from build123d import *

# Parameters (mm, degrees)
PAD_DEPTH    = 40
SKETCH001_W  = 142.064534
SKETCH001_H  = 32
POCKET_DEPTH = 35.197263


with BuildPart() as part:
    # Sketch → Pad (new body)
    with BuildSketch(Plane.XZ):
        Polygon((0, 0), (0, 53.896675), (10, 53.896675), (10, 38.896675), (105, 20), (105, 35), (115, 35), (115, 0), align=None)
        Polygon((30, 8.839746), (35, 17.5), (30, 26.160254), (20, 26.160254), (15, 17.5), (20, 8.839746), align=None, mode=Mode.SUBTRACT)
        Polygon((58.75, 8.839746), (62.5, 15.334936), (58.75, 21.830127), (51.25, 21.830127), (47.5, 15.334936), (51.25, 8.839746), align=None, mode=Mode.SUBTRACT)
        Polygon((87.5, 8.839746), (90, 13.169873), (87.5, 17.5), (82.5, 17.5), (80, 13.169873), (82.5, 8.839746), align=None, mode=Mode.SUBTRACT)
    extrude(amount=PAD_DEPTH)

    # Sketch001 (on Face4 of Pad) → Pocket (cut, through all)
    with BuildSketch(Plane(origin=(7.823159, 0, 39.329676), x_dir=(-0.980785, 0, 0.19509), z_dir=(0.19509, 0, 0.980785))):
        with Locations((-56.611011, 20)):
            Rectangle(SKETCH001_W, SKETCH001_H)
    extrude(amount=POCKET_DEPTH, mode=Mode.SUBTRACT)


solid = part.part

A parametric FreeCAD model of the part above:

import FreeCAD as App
import Part
import Sketcher
Q = App.Units.Quantity

doc = App.newDocument("Part")
params = doc.addObject("Spreadsheet::Sheet", "Params")
for row, (alias, value) in enumerate([
    ("sketch1_width", "115 mm"),
    ("sketch1_width2", "10 mm"),
    ("sketch1_width3", "5 mm"),
    ("sketch1_height", "35 mm"),
    ("sketch1_height2", "15 mm"),
    ("pad1_length", "40 mm"),
    ("sketch2_height", "32 mm"),
], start=1):
    params.set(f"A{row}", alias)
    params.set(f"B{row}", "=" + value)
    params.setAlias(f"B{row}", alias)

body = doc.addObject("PartDesign::Body", "Body")

# Sketch on XZ plane
sketch1 = body.newObject("Sketcher::SketchObject", "Sketch")
sketch1.AttachmentSupport = (doc.getObject("XZ_Plane"), [""])
sketch1.MapMode = "FlatFace"
sketch1.addGeometry(Part.LineSegment(App.Vector(0, 53.9, 0), App.Vector(0, 0, 0)), False)
sketch1.addGeometry(Part.LineSegment(App.Vector(0, 0, 0), App.Vector(115, 0, 0)), False)
sketch1.addGeometry(Part.LineSegment(App.Vector(115, 0, 0), App.Vector(115, 35, 0)), False)
sketch1.addGeometry(Part.LineSegment(App.Vector(115, 35, 0), App.Vector(105, 35, 0)), False)
sketch1.addGeometry(Part.LineSegment(App.Vector(105, 35, 0), App.Vector(105, 20, 0)), False)
sketch1.addGeometry(Part.LineSegment(App.Vector(105, 20, 0), App.Vector(10, 38.9, 0)), False)
sketch1.addGeometry(Part.LineSegment(App.Vector(10, 38.9, 0), App.Vector(10, 53.9, 0)), False)
sketch1.addGeometry(Part.LineSegment(App.Vector(10, 53.9, 0), App.Vector(0, 53.9, 0)), False)
sketch1.addGeometry(Part.LineSegment(App.Vector(87.5, 8.8, 0), App.Vector(82.5, 8.8, 0)), False)
sketch1.addGeometry(Part.LineSegment(App.Vector(82.5, 8.8, 0), App.Vector(80, 13.2, 0)), False)
sketch1.addGeometry(Part.LineSegment(App.Vector(80, 13.2, 0), App.Vector(82.5, 17.5, 0)), False)
sketch1.addGeometry(Part.LineSegment(App.Vector(82.5, 17.5, 0), App.Vector(87.5, 17.5, 0)), False)
sketch1.addGeometry(Part.LineSegment(App.Vector(87.5, 17.5, 0), App.Vector(90, 13.2, 0)), False)
sketch1.addGeometry(Part.LineSegment(App.Vector(90, 13.2, 0), App.Vector(87.5, 8.8, 0)), False)
sketch1.addGeometry(Part.LineSegment(App.Vector(58.8, 8.8, 0), App.Vector(51.2, 8.8, 0)), False)
sketch1.addGeometry(Part.LineSegment(App.Vector(51.2, 8.8, 0), App.Vector(47.5, 15.3, 0)), False)
sketch1.addGeometry(Part.LineSegment(App.Vector(47.5, 15.3, 0), App.Vector(51.2, 21.8, 0)), False)
sketch1.addGeometry(Part.LineSegment(App.Vector(51.2, 21.8, 0), App.Vector(58.8, 21.8, 0)), False)
sketch1.addGeometry(Part.LineSegment(App.Vector(58.8, 21.8, 0), App.Vector(62.5, 15.3, 0)), False)
sketch1.addGeometry(Part.LineSegment(App.Vector(62.5, 15.3, 0), App.Vector(58.8, 8.8, 0)), False)
sketch1.addGeometry(Part.LineSegment(App.Vector(30, 8.8, 0), App.Vector(20, 8.8, 0)), False)
sketch1.addGeometry(Part.LineSegment(App.Vector(20, 8.8, 0), App.Vector(15, 17.5, 0)), False)
sketch1.addGeometry(Part.LineSegment(App.Vector(15, 17.5, 0), App.Vector(20, 26.2, 0)), False)
sketch1.addGeometry(Part.LineSegment(App.Vector(20, 26.2, 0), App.Vector(30, 26.2, 0)), False)
sketch1.addGeometry(Part.LineSegment(App.Vector(30, 26.2, 0), App.Vector(35, 17.5, 0)), False)
sketch1.addGeometry(Part.LineSegment(App.Vector(35, 17.5, 0), App.Vector(30, 8.8, 0)), False)
sketch1.addConstraint(Sketcher.Constraint("Coincident", 0, 2, 1, 1))
sketch1.addConstraint(Sketcher.Constraint("Coincident", 1, 2, 2, 1))
sketch1.addConstraint(Sketcher.Constraint("Coincident", 2, 2, 3, 1))
sketch1.addConstraint(Sketcher.Constraint("Coincident", 3, 2, 4, 1))
sketch1.addConstraint(Sketcher.Constraint("Coincident", 4, 2, 5, 1))
sketch1.addConstraint(Sketcher.Constraint("Coincident", 5, 2, 6, 1))
sketch1.addConstraint(Sketcher.Constraint("Coincident", 6, 2, 7, 1))
sketch1.addConstraint(Sketcher.Constraint("Coincident", 7, 2, 0, 1))
sketch1.addConstraint(Sketcher.Constraint("Coincident", 8, 2, 9, 1))
sketch1.addConstraint(Sketcher.Constraint("Coincident", 9, 2, 10, 1))
sketch1.addConstraint(Sketcher.Constraint("Coincident", 10, 2, 11, 1))
sketch1.addConstraint(Sketcher.Constraint("Coincident", 11, 2, 12, 1))
sketch1.addConstraint(Sketcher.Constraint("Coincident", 12, 2, 13, 1))
sketch1.addConstraint(Sketcher.Constraint("Coincident", 13, 2, 8, 1))
sketch1.addConstraint(Sketcher.Constraint("Coincident", 14, 2, 15, 1))
sketch1.addConstraint(Sketcher.Constraint("Coincident", 15, 2, 16, 1))
sketch1.addConstraint(Sketcher.Constraint("Coincident", 16, 2, 17, 1))
sketch1.addConstraint(Sketcher.Constraint("Coincident", 17, 2, 18, 1))
sketch1.addConstraint(Sketcher.Constraint("Coincident", 18, 2, 19, 1))
sketch1.addConstraint(Sketcher.Constraint("Coincident", 19, 2, 14, 1))
sketch1.addConstraint(Sketcher.Constraint("Coincident", 20, 2, 21, 1))
sketch1.addConstraint(Sketcher.Constraint("Coincident", 21, 2, 22, 1))
sketch1.addConstraint(Sketcher.Constraint("Coincident", 22, 2, 23, 1))
sketch1.addConstraint(Sketcher.Constraint("Coincident", 23, 2, 24, 1))
sketch1.addConstraint(Sketcher.Constraint("Coincident", 24, 2, 25, 1))
sketch1.addConstraint(Sketcher.Constraint("Coincident", 25, 2, 20, 1))
sketch1.addConstraint(Sketcher.Constraint("Vertical", 0))
sketch1.addConstraint(Sketcher.Constraint("Horizontal", 1))
sketch1.addConstraint(Sketcher.Constraint("Vertical", 2))
sketch1.addConstraint(Sketcher.Constraint("Horizontal", 3))
sketch1.addConstraint(Sketcher.Constraint("Vertical", 4))
sketch1.addConstraint(Sketcher.Constraint("Vertical", 6))
sketch1.addConstraint(Sketcher.Constraint("Horizontal", 7))
sketch1.addConstraint(Sketcher.Constraint("Horizontal", 8))
sketch1.addConstraint(Sketcher.Constraint("Horizontal", 11))
sketch1.addConstraint(Sketcher.Constraint("Horizontal", 14))
sketch1.addConstraint(Sketcher.Constraint("Horizontal", 17))
sketch1.addConstraint(Sketcher.Constraint("Horizontal", 20))
sketch1.addConstraint(Sketcher.Constraint("Horizontal", 23))
sketch1.addConstraint(Sketcher.Constraint("Coincident", 0, 2, -1, 1))
sketch1.addConstraint(Sketcher.Constraint("Parallel", 9, 12))
sketch1.addConstraint(Sketcher.Constraint("Parallel", 10, 13))
sketch1.addConstraint(Sketcher.Constraint("Parallel", 12, 15))
sketch1.addConstraint(Sketcher.Constraint("Parallel", 13, 16))
sketch1.addConstraint(Sketcher.Constraint("Parallel", 15, 18))
sketch1.addConstraint(Sketcher.Constraint("Parallel", 16, 19))
sketch1.addConstraint(Sketcher.Constraint("Parallel", 18, 21))
sketch1.addConstraint(Sketcher.Constraint("Parallel", 19, 22))
sketch1.addConstraint(Sketcher.Constraint("Parallel", 21, 24))
sketch1.addConstraint(Sketcher.Constraint("Parallel", 22, 25))
sketch1.addConstraint(Sketcher.Constraint("Horizontal", 9, 2, 12, 2))
sketch1.addConstraint(Sketcher.Constraint("Horizontal", 13, 2, 14, 2))
sketch1.addConstraint(Sketcher.Constraint("Horizontal", 15, 2, 18, 2))
sketch1.addConstraint(Sketcher.Constraint("Horizontal", 19, 2, 20, 2))
sketch1.addConstraint(Sketcher.Constraint("Horizontal", 11, 2, 21, 2))
sketch1.addConstraint(Sketcher.Constraint("Horizontal", 21, 2, 24, 2))
sketch1.addConstraint(Sketcher.Constraint("Vertical", 8, 2, 10, 2))
sketch1.addConstraint(Sketcher.Constraint("Vertical", 11, 2, 13, 2))
sketch1.addConstraint(Sketcher.Constraint("Vertical", 14, 2, 16, 2))
sketch1.addConstraint(Sketcher.Constraint("Vertical", 20, 2, 22, 2))
sketch1.addConstraint(Sketcher.Constraint("Equal", 3, 7))
sketch1.addConstraint(Sketcher.Constraint("Equal", 7, 20))
sketch1.addConstraint(Sketcher.Constraint("Equal", 4, 6))
sketch1.addConstraint(Sketcher.Constraint("DistanceX", 1, 1, 1, 2, Q("115 mm")))
sketch1.addConstraint(Sketcher.Constraint("DistanceX", 3, 2, 3, 1, Q("10 mm")))
sketch1.addConstraint(Sketcher.Constraint("DistanceX", 8, 2, 8, 1, Q("5 mm")))
sketch1.addConstraint(Sketcher.Constraint("DistanceY", 2, 1, 2, 2, Q("35 mm")))
sketch1.addConstraint(Sketcher.Constraint("DistanceY", 4, 2, 4, 1, Q("15 mm")))
sketch1.addConstraint(Sketcher.Constraint("Angle", 9, Q("120 deg")))
sketch1.addConstraint(Sketcher.Constraint("Distance", 9, Q("5 mm")))
sketch1.addConstraint(Sketcher.Constraint("DistanceX", 14, 2, 14, 1, Q("7.5 mm")))
sketch1.addConstraint(Sketcher.Constraint("DistanceX", -1, 1, 9, 2, Q("80 mm")))
sketch1.addConstraint(Sketcher.Constraint("DistanceX", -1, 1, 20, 2, Q("20 mm")))
sketch1.addConstraint(Sketcher.Constraint("DistanceX", 15, 2, 10, 2, Q("35 mm")))
sketch1.addConstraint(Sketcher.Constraint("DistanceX", 15, 2, 18, 2, Q("15 mm")))
sketch1.addConstraint(Sketcher.Constraint("DistanceY", -1, 1, 10, 2, Q("17.5 mm")))
sketch1.addConstraint(Sketcher.Constraint("Angle", 5, Q("168.75 deg")))
sketch1.setExpression("Constraints[63]", "Params.sketch1_width")
sketch1.setExpression("Constraints[64]", "Params.sketch1_width2")
sketch1.setExpression("Constraints[65]", "Params.sketch1_width3")
sketch1.setExpression("Constraints[66]", "Params.sketch1_height")
sketch1.setExpression("Constraints[67]", "Params.sketch1_height2")
pad1 = body.newObject("PartDesign::Pad", "Pad")
pad1.Profile = sketch1
pad1.setExpression("Length", "Params.pad1_length")

# Sketch on an angled plane
sketch2 = body.newObject("Sketcher::SketchObject", "Sketch001")
sketch2.Placement = App.Placement(App.Vector(7.823159, 0, 39.329676), App.Rotation(App.Vector(-0.980785331, 0, 0.195090066), App.Vector(0, -0.999999999, 0), App.Vector(0.195090066, 0, 0.980785331), "ZXY"))
sketch2.addGeometry(Part.LineSegment(App.Vector(-128, 36, 0), App.Vector(-128, 4, 0)), False)
sketch2.addGeometry(Part.LineSegment(App.Vector(-128, 4, 0), App.Vector(14, 4, 0)), False)
sketch2.addGeometry(Part.LineSegment(App.Vector(14, 4, 0), App.Vector(14, 36, 0)), False)
sketch2.addGeometry(Part.LineSegment(App.Vector(14, 36, 0), App.Vector(-128, 36, 0)), False)
sketch2.addConstraint(Sketcher.Constraint("Coincident", 0, 2, 1, 1))
sketch2.addConstraint(Sketcher.Constraint("Coincident", 1, 2, 2, 1))
sketch2.addConstraint(Sketcher.Constraint("Coincident", 2, 2, 3, 1))
sketch2.addConstraint(Sketcher.Constraint("Coincident", 3, 2, 0, 1))
sketch2.addConstraint(Sketcher.Constraint("Vertical", 0))
sketch2.addConstraint(Sketcher.Constraint("Horizontal", 1))
sketch2.addConstraint(Sketcher.Constraint("Vertical", 2))
sketch2.addConstraint(Sketcher.Constraint("Horizontal", 3))
sketch2.addConstraint(Sketcher.Constraint("DistanceY", 0, 2, 0, 1, Q("32 mm")))
sketch2.addConstraint(Sketcher.Constraint("DistanceY", -1, 1, 0, 2, Q("4 mm")))
sketch2.addConstraint(Sketcher.Constraint("DistanceX", 1, 1, 1, 2, Q("142.064534 mm")))
sketch2.addConstraint(Sketcher.Constraint("DistanceX", 0, 2, -1, 1, Q("127.643278 mm")))
sketch2.setExpression("Constraints[8]", "Params.sketch2_height")
pocket1 = body.newObject("PartDesign::Pocket", "Pocket")
pocket1.Profile = sketch2
pocket1.Type = "ThroughAll"
pocket1.Reversed = True

doc.recompute()
